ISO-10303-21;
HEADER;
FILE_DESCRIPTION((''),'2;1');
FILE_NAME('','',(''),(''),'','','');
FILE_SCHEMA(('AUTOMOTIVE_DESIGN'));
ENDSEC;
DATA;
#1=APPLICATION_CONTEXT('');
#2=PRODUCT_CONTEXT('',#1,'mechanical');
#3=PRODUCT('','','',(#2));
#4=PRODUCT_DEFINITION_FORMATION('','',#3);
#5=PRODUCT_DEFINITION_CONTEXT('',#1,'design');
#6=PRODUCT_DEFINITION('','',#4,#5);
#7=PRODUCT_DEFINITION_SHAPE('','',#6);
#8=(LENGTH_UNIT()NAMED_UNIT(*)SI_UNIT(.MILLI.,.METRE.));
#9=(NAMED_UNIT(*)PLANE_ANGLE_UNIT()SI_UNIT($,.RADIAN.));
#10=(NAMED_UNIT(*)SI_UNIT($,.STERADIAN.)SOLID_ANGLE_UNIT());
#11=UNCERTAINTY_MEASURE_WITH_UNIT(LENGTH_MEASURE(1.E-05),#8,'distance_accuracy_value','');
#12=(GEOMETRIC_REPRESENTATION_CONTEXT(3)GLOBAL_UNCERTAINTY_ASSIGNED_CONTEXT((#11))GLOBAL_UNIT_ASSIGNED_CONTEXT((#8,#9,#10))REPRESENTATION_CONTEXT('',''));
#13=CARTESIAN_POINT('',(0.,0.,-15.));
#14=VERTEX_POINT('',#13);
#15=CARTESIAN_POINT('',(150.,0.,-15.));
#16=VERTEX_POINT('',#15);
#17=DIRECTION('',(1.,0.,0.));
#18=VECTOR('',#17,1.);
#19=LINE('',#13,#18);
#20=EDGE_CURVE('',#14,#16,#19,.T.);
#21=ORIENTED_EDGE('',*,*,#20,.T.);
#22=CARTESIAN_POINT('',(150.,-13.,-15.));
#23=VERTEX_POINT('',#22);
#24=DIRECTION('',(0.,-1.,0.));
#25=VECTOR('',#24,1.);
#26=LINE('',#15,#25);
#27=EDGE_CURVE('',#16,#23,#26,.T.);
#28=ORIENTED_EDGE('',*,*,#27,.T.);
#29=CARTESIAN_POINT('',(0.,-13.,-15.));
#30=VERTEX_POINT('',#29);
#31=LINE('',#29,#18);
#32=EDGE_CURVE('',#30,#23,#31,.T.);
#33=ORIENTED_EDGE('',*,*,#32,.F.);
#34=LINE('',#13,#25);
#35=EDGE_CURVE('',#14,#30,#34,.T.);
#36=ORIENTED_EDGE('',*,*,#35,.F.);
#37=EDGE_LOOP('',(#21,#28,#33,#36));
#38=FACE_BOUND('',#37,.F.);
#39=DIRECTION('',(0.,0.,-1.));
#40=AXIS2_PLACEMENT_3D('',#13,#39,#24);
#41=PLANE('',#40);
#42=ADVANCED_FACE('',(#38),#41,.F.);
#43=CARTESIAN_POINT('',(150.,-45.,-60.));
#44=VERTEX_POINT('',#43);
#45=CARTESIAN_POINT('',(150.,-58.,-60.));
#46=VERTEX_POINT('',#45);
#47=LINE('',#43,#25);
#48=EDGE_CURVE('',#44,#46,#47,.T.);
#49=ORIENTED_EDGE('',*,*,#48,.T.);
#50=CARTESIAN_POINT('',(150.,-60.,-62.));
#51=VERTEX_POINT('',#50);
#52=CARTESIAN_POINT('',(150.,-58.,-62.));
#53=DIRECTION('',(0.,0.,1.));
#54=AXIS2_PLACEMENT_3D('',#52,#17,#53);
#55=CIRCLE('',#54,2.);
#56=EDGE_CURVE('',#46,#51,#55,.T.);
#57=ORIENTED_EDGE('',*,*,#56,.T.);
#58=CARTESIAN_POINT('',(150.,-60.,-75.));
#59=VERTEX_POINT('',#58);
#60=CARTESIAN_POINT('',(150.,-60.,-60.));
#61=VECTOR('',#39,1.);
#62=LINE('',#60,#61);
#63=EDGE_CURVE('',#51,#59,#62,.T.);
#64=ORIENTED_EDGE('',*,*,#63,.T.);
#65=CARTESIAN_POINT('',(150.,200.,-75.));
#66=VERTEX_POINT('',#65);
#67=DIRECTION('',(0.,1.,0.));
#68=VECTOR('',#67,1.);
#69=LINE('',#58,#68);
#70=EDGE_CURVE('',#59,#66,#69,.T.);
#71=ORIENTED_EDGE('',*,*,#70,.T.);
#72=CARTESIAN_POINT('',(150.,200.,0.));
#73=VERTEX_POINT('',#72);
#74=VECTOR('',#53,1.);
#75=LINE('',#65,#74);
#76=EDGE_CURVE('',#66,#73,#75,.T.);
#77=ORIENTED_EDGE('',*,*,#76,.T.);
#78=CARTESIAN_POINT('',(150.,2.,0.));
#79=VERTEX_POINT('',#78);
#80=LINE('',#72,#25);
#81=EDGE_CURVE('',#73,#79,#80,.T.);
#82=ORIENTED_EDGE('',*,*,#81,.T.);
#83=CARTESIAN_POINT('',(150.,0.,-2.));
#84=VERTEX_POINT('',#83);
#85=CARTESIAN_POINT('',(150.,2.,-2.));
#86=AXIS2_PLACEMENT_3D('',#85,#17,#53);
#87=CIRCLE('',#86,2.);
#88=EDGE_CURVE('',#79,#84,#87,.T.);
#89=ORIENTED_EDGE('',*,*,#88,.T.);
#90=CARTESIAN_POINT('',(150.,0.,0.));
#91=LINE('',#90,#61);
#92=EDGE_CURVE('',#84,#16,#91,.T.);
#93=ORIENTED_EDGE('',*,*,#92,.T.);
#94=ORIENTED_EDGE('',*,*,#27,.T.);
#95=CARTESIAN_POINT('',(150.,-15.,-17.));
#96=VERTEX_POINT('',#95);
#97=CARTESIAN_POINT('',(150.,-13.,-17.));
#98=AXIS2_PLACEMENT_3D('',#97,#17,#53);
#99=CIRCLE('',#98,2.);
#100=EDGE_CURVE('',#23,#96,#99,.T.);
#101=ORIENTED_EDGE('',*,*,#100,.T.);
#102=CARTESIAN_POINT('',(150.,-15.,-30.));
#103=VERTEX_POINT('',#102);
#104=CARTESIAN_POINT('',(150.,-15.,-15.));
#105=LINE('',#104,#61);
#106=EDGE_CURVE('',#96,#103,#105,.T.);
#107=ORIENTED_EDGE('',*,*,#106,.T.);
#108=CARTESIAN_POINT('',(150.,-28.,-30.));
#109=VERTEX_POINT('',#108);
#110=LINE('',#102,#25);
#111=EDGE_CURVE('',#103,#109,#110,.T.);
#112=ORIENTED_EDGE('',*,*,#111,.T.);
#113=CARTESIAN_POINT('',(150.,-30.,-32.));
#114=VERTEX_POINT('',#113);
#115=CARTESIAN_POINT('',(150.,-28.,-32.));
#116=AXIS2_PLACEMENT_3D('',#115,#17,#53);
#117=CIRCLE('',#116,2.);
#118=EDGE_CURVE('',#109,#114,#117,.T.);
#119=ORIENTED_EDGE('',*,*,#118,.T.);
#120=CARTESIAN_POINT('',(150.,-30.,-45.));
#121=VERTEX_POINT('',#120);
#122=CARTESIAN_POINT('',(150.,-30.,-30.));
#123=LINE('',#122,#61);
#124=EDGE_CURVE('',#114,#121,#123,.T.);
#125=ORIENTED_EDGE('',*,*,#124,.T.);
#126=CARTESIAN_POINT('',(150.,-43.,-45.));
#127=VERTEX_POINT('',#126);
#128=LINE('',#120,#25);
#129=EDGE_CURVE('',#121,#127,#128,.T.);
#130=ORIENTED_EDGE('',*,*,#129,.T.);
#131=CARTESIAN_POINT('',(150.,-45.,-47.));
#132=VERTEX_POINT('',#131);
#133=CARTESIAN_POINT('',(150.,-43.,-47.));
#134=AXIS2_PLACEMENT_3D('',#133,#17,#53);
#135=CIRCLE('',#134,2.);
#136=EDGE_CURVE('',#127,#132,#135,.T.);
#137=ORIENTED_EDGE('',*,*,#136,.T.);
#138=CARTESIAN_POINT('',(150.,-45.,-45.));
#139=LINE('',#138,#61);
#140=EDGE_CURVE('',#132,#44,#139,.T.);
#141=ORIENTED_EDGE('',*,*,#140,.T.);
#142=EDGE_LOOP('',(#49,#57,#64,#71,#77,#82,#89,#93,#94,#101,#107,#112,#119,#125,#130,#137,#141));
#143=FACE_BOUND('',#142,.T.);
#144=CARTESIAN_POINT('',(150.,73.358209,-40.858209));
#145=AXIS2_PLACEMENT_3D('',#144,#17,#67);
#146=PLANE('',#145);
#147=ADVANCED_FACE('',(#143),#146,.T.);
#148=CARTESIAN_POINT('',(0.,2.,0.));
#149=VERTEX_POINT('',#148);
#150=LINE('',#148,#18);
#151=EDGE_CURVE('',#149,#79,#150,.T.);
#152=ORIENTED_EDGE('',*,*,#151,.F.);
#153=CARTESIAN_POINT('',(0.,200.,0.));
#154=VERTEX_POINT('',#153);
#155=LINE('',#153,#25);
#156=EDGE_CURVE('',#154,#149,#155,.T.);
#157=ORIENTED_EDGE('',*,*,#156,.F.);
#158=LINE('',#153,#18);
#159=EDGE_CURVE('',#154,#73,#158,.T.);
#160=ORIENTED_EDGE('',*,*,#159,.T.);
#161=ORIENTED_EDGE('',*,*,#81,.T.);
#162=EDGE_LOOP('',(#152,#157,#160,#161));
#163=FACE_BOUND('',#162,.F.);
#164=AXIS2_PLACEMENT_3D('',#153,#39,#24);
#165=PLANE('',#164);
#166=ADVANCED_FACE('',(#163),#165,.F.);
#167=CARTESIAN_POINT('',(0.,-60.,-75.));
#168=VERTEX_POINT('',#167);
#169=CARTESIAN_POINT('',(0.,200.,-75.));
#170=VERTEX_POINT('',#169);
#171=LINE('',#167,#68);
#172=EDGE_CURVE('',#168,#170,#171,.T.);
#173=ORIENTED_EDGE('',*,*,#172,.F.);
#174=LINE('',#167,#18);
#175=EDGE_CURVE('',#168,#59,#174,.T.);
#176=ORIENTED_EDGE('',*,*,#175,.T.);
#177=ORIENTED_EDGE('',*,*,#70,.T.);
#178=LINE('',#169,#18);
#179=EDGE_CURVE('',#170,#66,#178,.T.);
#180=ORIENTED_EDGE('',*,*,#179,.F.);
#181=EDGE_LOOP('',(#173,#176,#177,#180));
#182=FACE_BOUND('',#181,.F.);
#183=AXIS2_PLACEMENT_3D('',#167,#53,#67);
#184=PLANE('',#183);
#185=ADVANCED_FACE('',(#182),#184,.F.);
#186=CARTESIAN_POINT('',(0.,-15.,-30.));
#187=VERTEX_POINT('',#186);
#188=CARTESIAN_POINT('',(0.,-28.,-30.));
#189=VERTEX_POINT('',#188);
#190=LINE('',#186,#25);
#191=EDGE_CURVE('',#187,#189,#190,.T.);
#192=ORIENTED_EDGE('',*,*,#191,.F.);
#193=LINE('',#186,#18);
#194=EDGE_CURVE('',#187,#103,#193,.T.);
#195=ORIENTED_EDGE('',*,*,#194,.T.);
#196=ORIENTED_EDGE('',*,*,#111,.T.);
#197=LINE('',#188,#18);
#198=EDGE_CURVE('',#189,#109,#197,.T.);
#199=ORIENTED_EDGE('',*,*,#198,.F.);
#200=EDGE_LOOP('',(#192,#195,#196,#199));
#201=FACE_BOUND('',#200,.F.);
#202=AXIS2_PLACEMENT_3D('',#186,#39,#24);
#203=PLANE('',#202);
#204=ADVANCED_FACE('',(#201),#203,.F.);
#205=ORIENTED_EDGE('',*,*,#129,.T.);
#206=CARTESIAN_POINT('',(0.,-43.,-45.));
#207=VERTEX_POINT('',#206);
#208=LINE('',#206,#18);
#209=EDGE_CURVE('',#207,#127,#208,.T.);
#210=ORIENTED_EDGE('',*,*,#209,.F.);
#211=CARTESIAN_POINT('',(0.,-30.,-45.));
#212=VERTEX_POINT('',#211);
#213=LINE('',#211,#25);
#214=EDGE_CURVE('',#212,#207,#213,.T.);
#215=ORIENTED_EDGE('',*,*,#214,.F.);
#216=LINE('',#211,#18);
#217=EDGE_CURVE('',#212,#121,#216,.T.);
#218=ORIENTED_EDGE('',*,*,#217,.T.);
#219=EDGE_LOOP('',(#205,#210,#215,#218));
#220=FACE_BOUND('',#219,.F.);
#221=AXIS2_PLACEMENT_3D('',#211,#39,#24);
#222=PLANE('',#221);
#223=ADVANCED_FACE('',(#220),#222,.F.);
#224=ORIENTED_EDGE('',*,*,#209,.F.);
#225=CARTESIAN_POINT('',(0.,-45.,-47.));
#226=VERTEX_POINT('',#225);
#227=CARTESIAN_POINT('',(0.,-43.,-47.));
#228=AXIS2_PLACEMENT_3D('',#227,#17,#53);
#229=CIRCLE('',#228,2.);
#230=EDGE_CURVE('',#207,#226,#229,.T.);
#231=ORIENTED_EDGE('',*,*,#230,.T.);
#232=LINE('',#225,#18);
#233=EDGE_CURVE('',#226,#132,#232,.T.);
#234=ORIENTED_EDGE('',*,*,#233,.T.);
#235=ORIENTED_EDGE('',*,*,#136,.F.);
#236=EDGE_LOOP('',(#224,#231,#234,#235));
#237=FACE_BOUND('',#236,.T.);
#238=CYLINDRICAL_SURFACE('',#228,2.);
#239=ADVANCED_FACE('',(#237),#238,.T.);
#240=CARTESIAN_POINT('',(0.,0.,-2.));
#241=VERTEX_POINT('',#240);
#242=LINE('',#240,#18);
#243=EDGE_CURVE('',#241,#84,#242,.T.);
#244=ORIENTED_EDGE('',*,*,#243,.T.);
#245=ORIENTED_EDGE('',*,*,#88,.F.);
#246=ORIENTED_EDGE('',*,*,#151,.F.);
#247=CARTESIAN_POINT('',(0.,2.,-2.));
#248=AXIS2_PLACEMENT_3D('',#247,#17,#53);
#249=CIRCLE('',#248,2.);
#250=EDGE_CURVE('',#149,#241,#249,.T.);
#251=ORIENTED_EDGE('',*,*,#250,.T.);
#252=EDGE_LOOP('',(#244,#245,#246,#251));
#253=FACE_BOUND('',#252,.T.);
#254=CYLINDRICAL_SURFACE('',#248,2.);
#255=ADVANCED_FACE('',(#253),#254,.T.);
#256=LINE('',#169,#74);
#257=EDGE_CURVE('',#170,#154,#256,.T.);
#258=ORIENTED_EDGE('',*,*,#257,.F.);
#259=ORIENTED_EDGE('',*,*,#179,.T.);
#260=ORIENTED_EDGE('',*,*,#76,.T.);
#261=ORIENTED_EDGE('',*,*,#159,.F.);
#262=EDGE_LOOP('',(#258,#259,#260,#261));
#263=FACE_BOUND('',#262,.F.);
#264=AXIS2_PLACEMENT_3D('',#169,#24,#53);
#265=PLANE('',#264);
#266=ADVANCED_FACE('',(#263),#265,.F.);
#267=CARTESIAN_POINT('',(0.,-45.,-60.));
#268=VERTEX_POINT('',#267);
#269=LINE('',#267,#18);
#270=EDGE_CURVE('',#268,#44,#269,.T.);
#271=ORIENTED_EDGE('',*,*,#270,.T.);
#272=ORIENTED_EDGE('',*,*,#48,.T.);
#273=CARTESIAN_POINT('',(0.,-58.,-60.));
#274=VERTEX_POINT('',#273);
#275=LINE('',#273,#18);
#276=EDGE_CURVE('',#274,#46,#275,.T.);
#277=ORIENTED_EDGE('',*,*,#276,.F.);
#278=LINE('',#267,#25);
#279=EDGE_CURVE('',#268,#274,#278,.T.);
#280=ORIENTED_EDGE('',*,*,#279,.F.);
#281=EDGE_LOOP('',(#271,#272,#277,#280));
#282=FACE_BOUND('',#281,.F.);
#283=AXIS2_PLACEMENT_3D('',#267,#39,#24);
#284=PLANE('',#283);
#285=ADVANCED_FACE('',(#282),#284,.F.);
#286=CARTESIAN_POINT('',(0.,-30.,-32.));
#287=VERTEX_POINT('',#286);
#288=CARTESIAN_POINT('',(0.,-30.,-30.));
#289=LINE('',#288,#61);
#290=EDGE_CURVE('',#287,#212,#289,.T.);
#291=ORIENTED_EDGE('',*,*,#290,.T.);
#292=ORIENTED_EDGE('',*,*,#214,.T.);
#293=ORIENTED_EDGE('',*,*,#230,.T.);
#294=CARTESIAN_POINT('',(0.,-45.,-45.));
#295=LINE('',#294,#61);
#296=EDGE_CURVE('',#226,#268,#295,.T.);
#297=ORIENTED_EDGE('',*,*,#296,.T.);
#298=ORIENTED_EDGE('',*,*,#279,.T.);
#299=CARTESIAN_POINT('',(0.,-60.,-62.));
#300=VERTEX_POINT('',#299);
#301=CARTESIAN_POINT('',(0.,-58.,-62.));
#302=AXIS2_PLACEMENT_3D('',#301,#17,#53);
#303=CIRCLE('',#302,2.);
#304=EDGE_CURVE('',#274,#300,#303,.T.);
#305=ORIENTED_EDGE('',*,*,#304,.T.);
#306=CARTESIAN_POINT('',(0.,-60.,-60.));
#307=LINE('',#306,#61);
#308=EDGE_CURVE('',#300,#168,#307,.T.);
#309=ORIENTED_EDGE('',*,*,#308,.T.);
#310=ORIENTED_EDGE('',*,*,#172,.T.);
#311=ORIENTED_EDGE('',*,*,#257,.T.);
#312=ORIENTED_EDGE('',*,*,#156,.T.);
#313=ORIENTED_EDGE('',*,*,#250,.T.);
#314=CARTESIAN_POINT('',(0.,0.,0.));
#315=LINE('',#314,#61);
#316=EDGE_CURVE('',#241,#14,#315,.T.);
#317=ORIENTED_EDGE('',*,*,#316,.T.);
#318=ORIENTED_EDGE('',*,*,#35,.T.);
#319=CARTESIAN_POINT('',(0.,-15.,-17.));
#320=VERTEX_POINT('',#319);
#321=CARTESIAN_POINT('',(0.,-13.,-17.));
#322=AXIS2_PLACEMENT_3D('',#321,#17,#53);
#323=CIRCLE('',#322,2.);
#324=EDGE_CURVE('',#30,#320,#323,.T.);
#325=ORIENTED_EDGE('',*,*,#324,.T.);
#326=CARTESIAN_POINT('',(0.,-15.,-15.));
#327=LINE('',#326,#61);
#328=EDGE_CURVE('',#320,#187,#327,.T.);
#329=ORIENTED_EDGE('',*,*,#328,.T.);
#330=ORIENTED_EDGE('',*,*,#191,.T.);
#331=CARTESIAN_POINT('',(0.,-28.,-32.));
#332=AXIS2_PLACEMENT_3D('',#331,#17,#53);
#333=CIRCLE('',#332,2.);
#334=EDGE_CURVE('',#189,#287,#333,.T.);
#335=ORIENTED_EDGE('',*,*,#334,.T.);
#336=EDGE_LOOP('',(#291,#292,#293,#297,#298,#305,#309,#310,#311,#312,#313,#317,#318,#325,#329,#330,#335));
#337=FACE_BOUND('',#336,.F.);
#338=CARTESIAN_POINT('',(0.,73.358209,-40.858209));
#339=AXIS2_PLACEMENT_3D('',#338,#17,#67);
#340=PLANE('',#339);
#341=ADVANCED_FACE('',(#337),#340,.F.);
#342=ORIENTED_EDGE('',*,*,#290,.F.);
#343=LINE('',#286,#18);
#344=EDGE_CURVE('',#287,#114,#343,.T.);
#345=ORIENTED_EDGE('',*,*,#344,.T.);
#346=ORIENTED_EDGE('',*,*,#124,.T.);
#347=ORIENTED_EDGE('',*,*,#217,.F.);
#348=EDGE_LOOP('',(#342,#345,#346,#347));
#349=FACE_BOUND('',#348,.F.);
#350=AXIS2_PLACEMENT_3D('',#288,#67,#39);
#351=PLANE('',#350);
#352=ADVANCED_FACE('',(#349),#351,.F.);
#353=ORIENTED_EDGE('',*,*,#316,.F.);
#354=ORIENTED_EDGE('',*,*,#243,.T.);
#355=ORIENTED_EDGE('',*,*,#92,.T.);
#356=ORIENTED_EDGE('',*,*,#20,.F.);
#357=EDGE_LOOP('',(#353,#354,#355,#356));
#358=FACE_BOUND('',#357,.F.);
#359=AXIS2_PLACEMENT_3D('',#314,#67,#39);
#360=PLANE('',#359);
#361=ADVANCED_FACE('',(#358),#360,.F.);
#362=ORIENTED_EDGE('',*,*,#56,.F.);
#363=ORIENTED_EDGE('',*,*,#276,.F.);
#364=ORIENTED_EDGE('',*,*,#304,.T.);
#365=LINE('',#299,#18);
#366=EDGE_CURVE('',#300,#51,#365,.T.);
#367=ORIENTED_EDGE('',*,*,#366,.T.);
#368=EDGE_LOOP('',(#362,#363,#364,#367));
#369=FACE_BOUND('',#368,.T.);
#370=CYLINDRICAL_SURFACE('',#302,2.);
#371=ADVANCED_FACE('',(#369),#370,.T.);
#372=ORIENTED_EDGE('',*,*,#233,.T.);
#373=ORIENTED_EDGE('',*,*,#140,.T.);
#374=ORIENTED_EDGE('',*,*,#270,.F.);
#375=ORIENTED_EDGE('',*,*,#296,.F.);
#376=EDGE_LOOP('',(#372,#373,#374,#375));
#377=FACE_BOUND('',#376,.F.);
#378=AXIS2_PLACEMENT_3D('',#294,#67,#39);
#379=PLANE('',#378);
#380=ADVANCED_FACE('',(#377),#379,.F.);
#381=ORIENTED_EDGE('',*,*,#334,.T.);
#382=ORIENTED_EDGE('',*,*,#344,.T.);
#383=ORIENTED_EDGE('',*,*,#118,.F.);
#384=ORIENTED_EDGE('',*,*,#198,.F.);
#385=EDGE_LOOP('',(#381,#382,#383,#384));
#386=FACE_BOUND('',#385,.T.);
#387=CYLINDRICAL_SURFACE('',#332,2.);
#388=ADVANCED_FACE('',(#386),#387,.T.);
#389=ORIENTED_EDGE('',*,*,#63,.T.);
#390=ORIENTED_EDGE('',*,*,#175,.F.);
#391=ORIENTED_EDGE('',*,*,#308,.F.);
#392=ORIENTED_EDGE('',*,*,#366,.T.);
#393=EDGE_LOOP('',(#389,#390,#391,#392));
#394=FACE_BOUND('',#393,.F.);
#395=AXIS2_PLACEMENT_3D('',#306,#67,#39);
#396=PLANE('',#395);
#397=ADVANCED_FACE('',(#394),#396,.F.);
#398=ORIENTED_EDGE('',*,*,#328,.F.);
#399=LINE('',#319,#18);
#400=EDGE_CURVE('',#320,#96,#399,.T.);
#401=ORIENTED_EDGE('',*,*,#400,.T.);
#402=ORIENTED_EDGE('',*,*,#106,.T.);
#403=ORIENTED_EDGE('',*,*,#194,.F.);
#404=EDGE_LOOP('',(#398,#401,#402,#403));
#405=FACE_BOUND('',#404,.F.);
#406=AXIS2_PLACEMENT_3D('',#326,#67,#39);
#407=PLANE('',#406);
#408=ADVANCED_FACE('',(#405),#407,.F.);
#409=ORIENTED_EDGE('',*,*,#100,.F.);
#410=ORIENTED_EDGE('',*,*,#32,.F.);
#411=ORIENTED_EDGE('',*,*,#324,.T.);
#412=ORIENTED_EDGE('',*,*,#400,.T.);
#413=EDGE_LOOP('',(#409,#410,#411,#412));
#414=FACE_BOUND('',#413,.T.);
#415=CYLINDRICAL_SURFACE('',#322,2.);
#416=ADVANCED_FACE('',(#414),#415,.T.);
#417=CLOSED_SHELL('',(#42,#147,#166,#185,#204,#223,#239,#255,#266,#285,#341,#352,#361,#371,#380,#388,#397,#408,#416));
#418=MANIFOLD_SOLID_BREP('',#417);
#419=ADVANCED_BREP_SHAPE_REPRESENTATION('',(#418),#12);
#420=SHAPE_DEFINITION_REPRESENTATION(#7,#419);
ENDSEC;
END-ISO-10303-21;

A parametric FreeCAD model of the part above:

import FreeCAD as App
import Part
import Sketcher
Q = App.Units.Quantity


def edges_at(feature, points):
    """Names of the edges that pass closest to the given points."""
    edges = feature.Shape.Edges
    near = lambda p: min(range(len(edges)), key=lambda i: edges[i].distToShape(Part.Vertex(*p))[0])
    return sorted({f"Edge{near(p) + 1}" for p in points})

doc = App.newDocument("Part")
params = doc.addObject("Spreadsheet::Sheet", "Params")
for row, (alias, value) in enumerate([
    ("sketch1_width", "200 mm"),
    ("sketch1_width2", "15 mm"),
    ("pad1_length", "150 mm"),
    ("fillet_radius", "2 mm"),
], start=1):
    params.set(f"A{row}", alias)
    params.set(f"B{row}", "=" + value)
    params.setAlias(f"B{row}", alias)

body = doc.addObject("PartDesign::Body", "Body")

# Sketch on YZ plane
sketch1 = body.newObject("Sketcher::SketchObject", "Sketch")
sketch1.AttachmentSupport = (doc.getObject("YZ_Plane"), [""])
sketch1.MapMode = "FlatFace"
sketch1.addGeometry(Part.LineSegment(App.Vector(200, 0, 0), App.Vector(0, 0, 0)), False)
sketch1.addGeometry(Part.LineSegment(App.Vector(0, 0, 0), App.Vector(0, -15, 0)), False)
sketch1.addGeometry(Part.LineSegment(App.Vector(0, -15, 0), App.Vector(-15, -15, 0)), False)
sketch1.addGeometry(Part.LineSegment(App.Vector(-15, -15, 0), App.Vector(-15, -30, 0)), False)
sketch1.addGeometry(Part.LineSegment(App.Vector(-15, -30, 0), App.Vector(-30, -30, 0)), False)
sketch1.addGeometry(Part.LineSegment(App.Vector(-30, -30, 0), App.Vector(-30, -45, 0)), False)
sketch1.addGeometry(Part.LineSegment(App.Vector(-30, -45, 0), App.Vector(-45, -45, 0)), False)
sketch1.addGeometry(Part.LineSegment(App.Vector(-45, -45, 0), App.Vector(-45, -60, 0)), False)
sketch1.addGeometry(Part.LineSegment(App.Vector(-45, -60, 0), App.Vector(-60, -60, 0)), False)
sketch1.addGeometry(Part.LineSegment(App.Vector(-60, -60, 0), App.Vector(-60, -75, 0)), False)
sketch1.addGeometry(Part.LineSegment(App.Vector(-60, -75, 0), App.Vector(200, -75, 0)), False)
sketch1.addGeometry(Part.LineSegment(App.Vector(200, -75, 0), App.Vector(200, 0, 0)), False)
sketch1.addConstraint(Sketcher.Constraint("Coincident", 0, 2, 1, 1))
sketch1.addConstraint(Sketcher.Constraint("Coincident", 1, 2, 2, 1))
sketch1.addConstraint(Sketcher.Constraint("Coincident", 2, 2, 3, 1))
sketch1.addConstraint(Sketcher.Constraint("Coincident", 3, 2, 4, 1))
sketch1.addConstraint(Sketcher.Constraint("Coincident", 4, 2, 5, 1))
sketch1.addConstraint(Sketcher.Constraint("Coincident", 5, 2, 6, 1))
sketch1.addConstraint(Sketcher.Constraint("Coincident", 6, 2, 7, 1))
sketch1.addConstraint(Sketcher.Constraint("Coincident", 7, 2, 8, 1))
sketch1.addConstraint(Sketcher.Constraint("Coincident", 8, 2, 9, 1))
sketch1.addConstraint(Sketcher.Constraint("Coincident", 9, 2, 10, 1))
sketch1.addConstraint(Sketcher.Constraint("Coincident", 10, 2, 11, 1))
sketch1.addConstraint(Sketcher.Constraint("Coincident", 11, 2, 0, 1))
sketch1.addConstraint(Sketcher.Constraint("Horizontal", 0))
sketch1.addConstraint(Sketcher.Constraint("Vertical", 1))
sketch1.addConstraint(Sketcher.Constraint("Horizontal", 2))
sketch1.addConstraint(Sketcher.Constraint("Vertical", 3))
sketch1.addConstraint(Sketcher.Constraint("Horizontal", 4))
sketch1.addConstraint(Sketcher.Constraint("Vertical", 5))
sketch1.addConstraint(Sketcher.Constraint("Horizontal", 6))
sketch1.addConstraint(Sketcher.Constraint("Vertical", 7))
sketch1.addConstraint(Sketcher.Constraint("Horizontal", 8))
sketch1.addConstraint(Sketcher.Constraint("Vertical", 9))
sketch1.addConstraint(Sketcher.Constraint("Horizontal", 10))
sketch1.addConstraint(Sketcher.Constraint("Vertical", 11))
sketch1.addConstraint(Sketcher.Constraint("Coincident", 0, 2, -1, 1))
sketch1.addConstraint(Sketcher.Constraint("Equal", 2, 4))
sketch1.addConstraint(Sketcher.Constraint("Equal", 4, 6))
sketch1.addConstraint(Sketcher.Constraint("Equal", 6, 8))
sketch1.addConstraint(Sketcher.Constraint("Equal", 8, 1))
sketch1.addConstraint(Sketcher.Constraint("Equal", 1, 3))
sketch1.addConstraint(Sketcher.Constraint("Equal", 3, 5))
sketch1.addConstraint(Sketcher.Constraint("Equal", 5, 7))
sketch1.addConstraint(Sketcher.Constraint("Equal", 7, 9))
sketch1.addConstraint(Sketcher.Constraint("DistanceX", 0, 2, 0, 1, Q("200 mm")))
sketch1.addConstraint(Sketcher.Constraint("DistanceX", 2, 2, 2, 1, Q("15 mm")))
sketch1.setExpression("Constraints[33]", "Params.sketch1_width")
sketch1.setExpression("Constraints[34]", "Params.sketch1_width2")
pad1 = body.newObject("PartDesign::Pad", "Pad")
pad1.Profile = sketch1
pad1.setExpression("Length", "Params.pad1_length")
doc.recompute()

fillet = body.newObject("PartDesign::Fillet", "Fillet")
fillet.Base = (pad1, edges_at(pad1, [
    (75, -15, -15),
    (75, 0, 0),
    (75, -30, -30),
    (75, -45, -45),
    (75, -60, -60),
]))
fillet.setExpression("Radius", "Params.fillet_radius")

doc.recompute()
